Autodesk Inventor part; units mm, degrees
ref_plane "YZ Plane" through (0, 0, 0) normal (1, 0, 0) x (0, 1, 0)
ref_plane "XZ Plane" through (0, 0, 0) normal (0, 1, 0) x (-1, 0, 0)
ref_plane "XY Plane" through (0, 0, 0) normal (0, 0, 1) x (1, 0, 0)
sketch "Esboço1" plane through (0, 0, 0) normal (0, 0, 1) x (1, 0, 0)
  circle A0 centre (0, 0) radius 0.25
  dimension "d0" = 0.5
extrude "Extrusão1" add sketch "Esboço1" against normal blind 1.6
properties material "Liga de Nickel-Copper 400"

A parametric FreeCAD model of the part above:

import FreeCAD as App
import Part
import Sketcher

V = App.Vector

doc = App.newDocument("Part")
params = doc.addObject("Spreadsheet::Sheet", "Params")
for row, (alias, value) in enumerate([
    ("sketch1_diameter", "0.5 mm"),
    ("pad1_length", "1.6 mm"),
], start=1):
    params.set(f"A{row}", alias)
    params.set(f"B{row}", "=" + value)
    params.setAlias(f"B{row}", alias)

body = doc.addObject("PartDesign::Body", "Body")

# Sketch on XY plane
sketch1 = doc.addObject("Sketcher::SketchObject", "Sketch")
body.addObject(sketch1)
sketch1.AttachmentSupport = (doc.XY_Plane, [""])
sketch1.MapMode = "FlatFace"
sketch1.addGeometry(Part.Circle(V(0, 0, 0), V(0, 0, 1), 0.25), False)
sketch1.addConstraint(Sketcher.Constraint("Coincident", 0, 3, -1, 1))
sketch1.addConstraint(Sketcher.Constraint("Diameter", 0, 0.5))
sketch1.setExpression("Constraints[1]", "Params.sketch1_diameter")
pad1 = doc.addObject("PartDesign::Pad", "Pad")
body.addObject(pad1)
pad1.Profile = sketch1
pad1.setExpression("Length", "Params.pad1_length")
pad1.Reversed = True

doc.recompute()
